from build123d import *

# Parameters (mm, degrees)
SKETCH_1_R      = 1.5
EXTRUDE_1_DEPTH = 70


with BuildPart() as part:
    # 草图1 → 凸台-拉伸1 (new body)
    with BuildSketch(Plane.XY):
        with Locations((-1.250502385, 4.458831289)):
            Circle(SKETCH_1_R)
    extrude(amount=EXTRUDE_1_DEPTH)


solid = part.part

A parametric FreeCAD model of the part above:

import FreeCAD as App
import Part
import Sketcher
Q = App.Units.Quantity

doc = App.newDocument("Part")
body = doc.addObject("PartDesign::Body", "Body")

sketch1 = body.newObject("Sketcher::SketchObject", "Sketch")
sketch1.AttachmentSupport = (doc.getObject("XY_Plane"), [""])
sketch1.MapMode = "FlatFace"
sketch1.addGeometry(Part.Circle(App.Vector(-1.250502, 4.458831, 0), App.Vector(0, 0, 1), 1.5), False)
sketch1.addConstraint(Sketcher.Constraint("Diameter", 0, Q("3 mm")))
sketch1.addConstraint(Sketcher.Constraint("DistanceY", -1, 1, 0, 3, Q("4.458831 mm")))
sketch1.addConstraint(Sketcher.Constraint("DistanceX", 0, 3, -1, 1, Q("1.250502 mm")))
pad1 = body.newObject("PartDesign::Pad", "Pad")
pad1.Profile = sketch1
pad1.Length = 70

doc.recompute()
